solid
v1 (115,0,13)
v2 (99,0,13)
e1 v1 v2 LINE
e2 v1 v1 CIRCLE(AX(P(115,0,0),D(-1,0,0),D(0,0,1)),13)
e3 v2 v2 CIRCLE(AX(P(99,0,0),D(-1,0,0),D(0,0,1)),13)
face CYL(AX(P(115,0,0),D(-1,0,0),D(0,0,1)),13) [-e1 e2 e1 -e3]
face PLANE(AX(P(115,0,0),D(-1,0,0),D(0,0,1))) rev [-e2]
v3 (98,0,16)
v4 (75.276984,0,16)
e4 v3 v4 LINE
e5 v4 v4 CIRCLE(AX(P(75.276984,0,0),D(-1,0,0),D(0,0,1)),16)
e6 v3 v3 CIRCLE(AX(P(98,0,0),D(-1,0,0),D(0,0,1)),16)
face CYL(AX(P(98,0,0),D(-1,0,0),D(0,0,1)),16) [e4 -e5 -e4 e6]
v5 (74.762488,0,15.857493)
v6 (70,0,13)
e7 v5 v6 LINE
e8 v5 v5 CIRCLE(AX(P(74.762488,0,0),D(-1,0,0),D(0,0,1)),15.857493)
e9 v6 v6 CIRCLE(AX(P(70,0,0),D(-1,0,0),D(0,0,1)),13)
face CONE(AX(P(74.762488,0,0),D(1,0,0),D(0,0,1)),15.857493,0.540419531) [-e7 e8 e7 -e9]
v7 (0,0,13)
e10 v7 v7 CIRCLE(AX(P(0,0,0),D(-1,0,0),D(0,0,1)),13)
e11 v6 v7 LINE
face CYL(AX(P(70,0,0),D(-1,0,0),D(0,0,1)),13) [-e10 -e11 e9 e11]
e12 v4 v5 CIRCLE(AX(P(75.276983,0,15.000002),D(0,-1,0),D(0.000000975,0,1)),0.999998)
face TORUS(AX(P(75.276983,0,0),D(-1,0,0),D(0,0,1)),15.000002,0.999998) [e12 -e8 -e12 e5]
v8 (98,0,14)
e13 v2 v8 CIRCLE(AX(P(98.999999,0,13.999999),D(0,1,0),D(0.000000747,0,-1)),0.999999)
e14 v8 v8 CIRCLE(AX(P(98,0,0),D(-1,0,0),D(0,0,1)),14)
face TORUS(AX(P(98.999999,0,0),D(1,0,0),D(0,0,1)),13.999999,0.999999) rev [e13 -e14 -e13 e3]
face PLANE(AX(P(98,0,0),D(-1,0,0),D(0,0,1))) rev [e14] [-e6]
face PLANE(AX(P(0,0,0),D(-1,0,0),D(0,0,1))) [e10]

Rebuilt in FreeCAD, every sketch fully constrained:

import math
import FreeCAD as App
import Part
import Sketcher

V = App.Vector
Q = App.Units.Quantity

doc = App.newDocument("Part")
params = doc.addObject("Spreadsheet::Sheet", "Params")
for row, (alias, value) in enumerate([
    ("sketch1_radius", "0.999999 mm"),
    ("sketch1_width", "70 mm"),
    ("sketch1_width2", "115 mm"),
    ("sketch1_width3", "16 mm"),
    ("sketch1_height", "13 mm"),
    ("revolution_angle", "360 deg"),
], start=1):
    params.set(f"A{row}", alias)
    params.set(f"B{row}", "=" + value)
    params.setAlias(f"B{row}", alias)

body = doc.addObject("PartDesign::Body", "Body")

sketch1 = body.newObject("Sketcher::SketchObject", "Sketch")
sketch1.AttachmentSupport = (doc.getObject("XZ_Plane"), [""])
sketch1.MapMode = "FlatFace"
sketch1.addGeometry(Part.ArcOfCircle(Part.Circle(V(75.3, 15, 0), V(0, 0, 1), 1), math.radians(90), math.radians(121)), False)
sketch1.addGeometry(Part.LineSegment(V(74.8, 15.9, 0), V(70, 13, 0)), False)
sketch1.addGeometry(Part.LineSegment(V(70, 13, 0), V(0, 13, 0)), False)
sketch1.addGeometry(Part.LineSegment(V(0, 13, 0), V(0, 0, 0)), False)
sketch1.addGeometry(Part.LineSegment(V(0, 0, 0), V(115, 0, 0)), False)
sketch1.addGeometry(Part.LineSegment(V(115, 0, 0), V(115, 13, 0)), False)
sketch1.addGeometry(Part.LineSegment(V(115, 13, 0), V(99, 13, 0)), False)
sketch1.addGeometry(Part.ArcOfCircle(Part.Circle(V(99, 14, 0), V(0, 0, 1), 1), math.radians(180), math.radians(270)), False)
sketch1.addGeometry(Part.LineSegment(V(98, 14, 0), V(98, 16, 0)), False)
sketch1.addGeometry(Part.LineSegment(V(98, 16, 0), V(75.3, 16, 0)), False)
sketch1.addConstraint(Sketcher.Constraint("Tangent", 0, 2, 1, 1))
sketch1.addConstraint(Sketcher.Constraint("Coincident", 1, 2, 2, 1))
sketch1.addConstraint(Sketcher.Constraint("Coincident", 2, 2, 3, 1))
sketch1.addConstraint(Sketcher.Constraint("Coincident", 3, 2, 4, 1))
sketch1.addConstraint(Sketcher.Constraint("Coincident", 4, 2, 5, 1))
sketch1.addConstraint(Sketcher.Constraint("Coincident", 5, 2, 6, 1))
sketch1.addConstraint(Sketcher.Constraint("Tangent", 6, 2, 7, 2))
sketch1.addConstraint(Sketcher.Constraint("Tangent", 7, 1, 8, 1))
sketch1.addConstraint(Sketcher.Constraint("Coincident", 8, 2, 9, 1))
sketch1.addConstraint(Sketcher.Constraint("Tangent", 9, 2, 0, 1))
sketch1.addConstraint(Sketcher.Constraint("Horizontal", 2))
sketch1.addConstraint(Sketcher.Constraint("Vertical", 3))
sketch1.addConstraint(Sketcher.Constraint("Horizontal", 4))
sketch1.addConstraint(Sketcher.Constraint("Vertical", 5))
sketch1.addConstraint(Sketcher.Constraint("Horizontal", 6))
sketch1.addConstraint(Sketcher.Constraint("Vertical", 8))
sketch1.addConstraint(Sketcher.Constraint("Horizontal", 9))
sketch1.addConstraint(Sketcher.Constraint("Coincident", 3, 2, -1, 1))
sketch1.addConstraint(Sketcher.Constraint("Equal", 0, 7))
sketch1.addConstraint(Sketcher.Constraint("Horizontal", 2, 2, 5, 2))
sketch1.addConstraint(Sketcher.Constraint("Radius", 7, Q("0.999999 mm")))
sketch1.addConstraint(Sketcher.Constraint("DistanceX", 2, 2, 2, 1, Q("70 mm")))
sketch1.addConstraint(Sketcher.Constraint("DistanceX", 4, 1, 4, 2, Q("115 mm")))
sketch1.addConstraint(Sketcher.Constraint("DistanceX", 6, 2, 6, 1, Q("16 mm")))
sketch1.addConstraint(Sketcher.Constraint("DistanceY", 3, 2, 3, 1, Q("13 mm")))
sketch1.addConstraint(Sketcher.Constraint("DistanceY", 8, 1, 8, 2, Q("2 mm")))
sketch1.addConstraint(Sketcher.Constraint("DistanceX", 9, 2, 9, 1, Q("22.723016 mm")))
sketch1.setExpression("Constraints[20]", "Params.sketch1_radius")
sketch1.setExpression("Constraints[21]", "Params.sketch1_width")
sketch1.setExpression("Constraints[22]", "Params.sketch1_width2")
sketch1.setExpression("Constraints[23]", "Params.sketch1_width3")
sketch1.setExpression("Constraints[24]", "Params.sketch1_height")
revolution = body.newObject("PartDesign::Revolution", "Revolution")
revolution.Profile = sketch1
revolution.ReferenceAxis = (sketch1, ["H_Axis"])
revolution.setExpression("Angle", "Params.revolution_angle")

doc.recompute()
